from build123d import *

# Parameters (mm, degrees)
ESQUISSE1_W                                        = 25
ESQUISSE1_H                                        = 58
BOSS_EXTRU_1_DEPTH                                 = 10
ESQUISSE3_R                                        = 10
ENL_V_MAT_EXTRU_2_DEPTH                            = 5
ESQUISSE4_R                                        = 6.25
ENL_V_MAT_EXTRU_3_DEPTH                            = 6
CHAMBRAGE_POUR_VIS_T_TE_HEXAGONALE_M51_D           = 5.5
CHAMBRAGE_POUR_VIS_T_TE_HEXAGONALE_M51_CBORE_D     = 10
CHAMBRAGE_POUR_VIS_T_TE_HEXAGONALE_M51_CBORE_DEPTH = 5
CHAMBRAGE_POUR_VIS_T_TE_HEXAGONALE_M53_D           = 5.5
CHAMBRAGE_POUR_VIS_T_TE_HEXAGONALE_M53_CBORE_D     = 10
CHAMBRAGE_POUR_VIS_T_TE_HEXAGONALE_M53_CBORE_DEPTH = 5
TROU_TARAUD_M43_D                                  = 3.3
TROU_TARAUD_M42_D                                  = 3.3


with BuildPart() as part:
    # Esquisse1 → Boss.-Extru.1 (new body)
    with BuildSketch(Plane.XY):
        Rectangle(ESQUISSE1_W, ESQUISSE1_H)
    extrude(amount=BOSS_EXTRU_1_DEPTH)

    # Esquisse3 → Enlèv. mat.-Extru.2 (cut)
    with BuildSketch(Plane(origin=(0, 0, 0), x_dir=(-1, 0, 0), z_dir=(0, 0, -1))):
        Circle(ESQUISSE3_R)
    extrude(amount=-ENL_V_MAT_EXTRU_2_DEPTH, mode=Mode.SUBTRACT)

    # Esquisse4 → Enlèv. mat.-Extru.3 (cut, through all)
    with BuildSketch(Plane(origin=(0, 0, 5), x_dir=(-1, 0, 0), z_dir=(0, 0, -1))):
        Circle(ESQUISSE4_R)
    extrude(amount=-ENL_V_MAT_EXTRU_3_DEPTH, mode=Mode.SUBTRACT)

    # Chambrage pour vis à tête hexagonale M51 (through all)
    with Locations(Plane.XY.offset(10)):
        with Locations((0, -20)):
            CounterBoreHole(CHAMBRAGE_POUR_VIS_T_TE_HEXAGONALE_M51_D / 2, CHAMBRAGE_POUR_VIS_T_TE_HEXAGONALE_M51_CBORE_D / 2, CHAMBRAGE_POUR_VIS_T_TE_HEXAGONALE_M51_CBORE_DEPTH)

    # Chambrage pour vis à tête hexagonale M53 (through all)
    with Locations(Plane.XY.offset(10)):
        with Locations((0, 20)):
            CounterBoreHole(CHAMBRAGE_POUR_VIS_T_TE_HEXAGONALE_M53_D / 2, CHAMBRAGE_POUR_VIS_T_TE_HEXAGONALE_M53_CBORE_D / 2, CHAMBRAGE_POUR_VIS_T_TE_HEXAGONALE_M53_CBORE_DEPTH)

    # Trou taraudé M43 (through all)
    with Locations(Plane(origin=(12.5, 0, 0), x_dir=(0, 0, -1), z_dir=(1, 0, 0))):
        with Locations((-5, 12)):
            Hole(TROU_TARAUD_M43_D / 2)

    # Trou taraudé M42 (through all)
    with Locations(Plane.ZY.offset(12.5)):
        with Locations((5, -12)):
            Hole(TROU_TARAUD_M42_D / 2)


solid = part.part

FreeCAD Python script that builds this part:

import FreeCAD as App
import Part
import Sketcher

V = App.Vector
Q = App.Units.Quantity


def add_polygon(sketch, points):
    """Adds a closed chain of lines whose ends are joined by coincident constraints."""
    first, n = sketch.GeometryCount, len(points)
    for a, b in zip(points, points[1:] + points[:1]):
        sketch.addGeometry(Part.LineSegment(App.Vector(*a, 0), App.Vector(*b, 0)), False)
    for i in range(n):
        sketch.addConstraint(Sketcher.Constraint("Coincident", first + i, 2, first + (i + 1) % n, 1))

doc = App.newDocument("Part")
params = doc.addObject("Spreadsheet::Sheet", "Params")
for row, (alias, value) in enumerate([
    ("sketch1_width", "25 mm"),
    ("sketch1_height", "58 mm"),
    ("pad1_length", "10 mm"),
    ("sketch2_diameter", "20 mm"),
    ("pocket1_length", "5 mm"),
    ("sketch3_diameter", "12.5 mm"),
    ("sketch4_diameter", "5.5 mm"),
    ("hole_diameter", "5.5 mm"),
    ("hole_cbore_diameter", "10 mm"),
    ("hole_cbore_depth", "5 mm"),
    ("sketch5_diameter", "5.5 mm"),
    ("hole2_diameter", "5.5 mm"),
    ("hole2_cbore_diameter", "10 mm"),
    ("hole2_cbore_depth", "5 mm"),
    ("sketch6_diameter", "3.3 mm"),
    ("hole3_diameter", "3.3 mm"),
    ("sketch7_diameter", "3.3 mm"),
    ("hole4_diameter", "3.3 mm"),
], start=1):
    params.set(f"A{row}", alias)
    params.set(f"B{row}", "=" + value)
    params.setAlias(f"B{row}", alias)

body = doc.addObject("PartDesign::Body", "Body")

# Sketch on XY plane
sketch1 = body.newObject("Sketcher::SketchObject", "Sketch")
sketch1.AttachmentSupport = (doc.getObject("XY_Plane"), [""])
sketch1.MapMode = "FlatFace"
add_polygon(sketch1, [(-12.5, 29), (-12.5, -29), (12.5, -29), (12.5, 29)])  # lines 0-3
sketch1.addConstraint([
    Sketcher.Constraint("Vertical", 0),
    Sketcher.Constraint("Horizontal", 1),
    Sketcher.Constraint("Vertical", 2),
    Sketcher.Constraint("Horizontal", 3),
    Sketcher.Constraint("Symmetric", 0, 2, 2, 2, -1, 1),
    Sketcher.Constraint("DistanceX", 1, 1, 1, 2, Q("25 mm")),
    Sketcher.Constraint("DistanceY", 0, 2, 0, 1, Q("58 mm")),
])
sketch1.setExpression("Constraints[9]", "Params.sketch1_width")
sketch1.setExpression("Constraints[10]", "Params.sketch1_height")
pad1 = body.newObject("PartDesign::Pad", "Pad")
pad1.Profile = sketch1
pad1.setExpression("Length", "Params.pad1_length")

# Sketch on XY plane
sketch2 = body.newObject("Sketcher::SketchObject", "Sketch001")
sketch2.AttachmentSupport = (doc.getObject("XY_Plane"), [""])
sketch2.MapMode = "FlatFace"
sketch2.addGeometry(Part.Circle(V(0, 0, 0), V(0, 0, 1), 10), False)
sketch2.addConstraint([
    Sketcher.Constraint("Coincident", 0, 3, -1, 1),
    Sketcher.Constraint("Diameter", 0, Q("20 mm")),
])
sketch2.setExpression("Constraints[1]", "Params.sketch2_diameter")
pocket1 = body.newObject("PartDesign::Pocket", "Pocket")
pocket1.Profile = sketch2
pocket1.setExpression("Length", "Params.pocket1_length")
pocket1.Reversed = True

# Sketch on XY plane
sketch3 = body.newObject("Sketcher::SketchObject", "Sketch002")
sketch3.AttachmentSupport = (doc.getObject("XY_Plane"), [""])
sketch3.MapMode = "FlatFace"
sketch3.AttachmentOffset = App.Placement(V(0, 0, 5), App.Rotation())
sketch3.addGeometry(Part.Circle(V(0, 0, 0), V(0, 0, 1), 6.25), False)
sketch3.addConstraint([
    Sketcher.Constraint("Coincident", 0, 3, -1, 1),
    Sketcher.Constraint("Diameter", 0, Q("12.5 mm")),
])
sketch3.setExpression("Constraints[1]", "Params.sketch3_diameter")
pocket2 = body.newObject("PartDesign::Pocket", "Pocket001")
pocket2.Profile = sketch3
pocket2.Type = "ThroughAll"
pocket2.Reversed = True

# Sketch on XY plane
sketch4 = body.newObject("Sketcher::SketchObject", "Sketch003")
sketch4.AttachmentSupport = (doc.getObject("XY_Plane"), [""])
sketch4.MapMode = "FlatFace"
sketch4.AttachmentOffset = App.Placement(V(0, 0, 10), App.Rotation())
sketch4.addGeometry(Part.Circle(V(0, -20, 0), V(0, 0, 1), 2.75), False)
sketch4.addConstraint([
    Sketcher.Constraint("PointOnObject", 0, 3, -2),
    Sketcher.Constraint("Diameter", 0, Q("5.5 mm")),
    Sketcher.Constraint("DistanceY", 0, 3, -1, 1, Q("20 mm")),
])
sketch4.setExpression("Constraints[1]", "Params.sketch4_diameter")
doc.recompute()
hole = body.newObject("PartDesign::Hole", "Hole")
hole.Profile = sketch4
hole.ThreadType = "None"
hole.setExpression("Diameter", "Params.hole_diameter")
hole.DepthType = "ThroughAll"
hole.HoleCutType = "Counterbore"
hole.setExpression("HoleCutDiameter", "Params.hole_cbore_diameter")
hole.setExpression("HoleCutDepth", "Params.hole_cbore_depth")

# Sketch on XY plane
sketch5 = body.newObject("Sketcher::SketchObject", "Sketch004")
sketch5.AttachmentSupport = (doc.getObject("XY_Plane"), [""])
sketch5.MapMode = "FlatFace"
sketch5.AttachmentOffset = App.Placement(V(0, 0, 10), App.Rotation())
sketch5.addGeometry(Part.Circle(V(0, 20, 0), V(0, 0, 1), 2.75), False)
sketch5.addConstraint([
    Sketcher.Constraint("PointOnObject", 0, 3, -2),
    Sketcher.Constraint("Diameter", 0, Q("5.5 mm")),
    Sketcher.Constraint("DistanceY", -1, 1, 0, 3, Q("20 mm")),
])
sketch5.setExpression("Constraints[1]", "Params.sketch5_diameter")
doc.recompute()
hole2 = body.newObject("PartDesign::Hole", "Hole001")
hole2.Profile = sketch5
hole2.ThreadType = "None"
hole2.setExpression("Diameter", "Params.hole2_diameter")
hole2.DepthType = "ThroughAll"
hole2.HoleCutType = "Counterbore"
hole2.setExpression("HoleCutDiameter", "Params.hole2_cbore_diameter")
hole2.setExpression("HoleCutDepth", "Params.hole2_cbore_depth")

# Sketch on YZ plane
sketch6 = body.newObject("Sketcher::SketchObject", "Sketch005")
sketch6.AttachmentSupport = (doc.getObject("YZ_Plane"), [""])
sketch6.MapMode = "FlatFace"
sketch6.AttachmentOffset = App.Placement(V(0, 0, 12.5), App.Rotation())
sketch6.addGeometry(Part.Circle(V(12, 5, 0), V(0, 0, 1), 1.65), False)
sketch6.addConstraint([
    Sketcher.Constraint("Diameter", 0, Q("3.3 mm")),
    Sketcher.Constraint("DistanceX", -1, 1, 0, 3, Q("12 mm")),
    Sketcher.Constraint("DistanceY", -1, 1, 0, 3, Q("5 mm")),
])
sketch6.setExpression("Constraints[0]", "Params.sketch6_diameter")
doc.recompute()
hole3 = body.newObject("PartDesign::Hole", "Hole002")
hole3.Profile = sketch6
hole3.ThreadType = "None"
hole3.setExpression("Diameter", "Params.hole3_diameter")
hole3.DepthType = "ThroughAll"

# Sketch on YZ plane
sketch7 = body.newObject("Sketcher::SketchObject", "Sketch006")
sketch7.AttachmentSupport = (doc.getObject("YZ_Plane"), [""])
sketch7.MapMode = "FlatFace"
sketch7.AttachmentOffset = App.Placement(V(0, 0, -12.5), App.Rotation())
sketch7.addGeometry(Part.Circle(V(-12, 5, 0), V(0, 0, 1), 1.65), False)
sketch7.addConstraint([
    Sketcher.Constraint("Diameter", 0, Q("3.3 mm")),
    Sketcher.Constraint("DistanceX", 0, 3, -1, 1, Q("12 mm")),
    Sketcher.Constraint("DistanceY", -1, 1, 0, 3, Q("5 mm")),
])
sketch7.setExpression("Constraints[0]", "Params.sketch7_diameter")
doc.recompute()
hole4 = body.newObject("PartDesign::Hole", "Hole003")
hole4.Profile = sketch7
hole4.ThreadType = "None"
hole4.setExpression("Diameter", "Params.hole4_diameter")
hole4.DepthType = "ThroughAll"
hole4.Reversed = True

doc.recompute()
